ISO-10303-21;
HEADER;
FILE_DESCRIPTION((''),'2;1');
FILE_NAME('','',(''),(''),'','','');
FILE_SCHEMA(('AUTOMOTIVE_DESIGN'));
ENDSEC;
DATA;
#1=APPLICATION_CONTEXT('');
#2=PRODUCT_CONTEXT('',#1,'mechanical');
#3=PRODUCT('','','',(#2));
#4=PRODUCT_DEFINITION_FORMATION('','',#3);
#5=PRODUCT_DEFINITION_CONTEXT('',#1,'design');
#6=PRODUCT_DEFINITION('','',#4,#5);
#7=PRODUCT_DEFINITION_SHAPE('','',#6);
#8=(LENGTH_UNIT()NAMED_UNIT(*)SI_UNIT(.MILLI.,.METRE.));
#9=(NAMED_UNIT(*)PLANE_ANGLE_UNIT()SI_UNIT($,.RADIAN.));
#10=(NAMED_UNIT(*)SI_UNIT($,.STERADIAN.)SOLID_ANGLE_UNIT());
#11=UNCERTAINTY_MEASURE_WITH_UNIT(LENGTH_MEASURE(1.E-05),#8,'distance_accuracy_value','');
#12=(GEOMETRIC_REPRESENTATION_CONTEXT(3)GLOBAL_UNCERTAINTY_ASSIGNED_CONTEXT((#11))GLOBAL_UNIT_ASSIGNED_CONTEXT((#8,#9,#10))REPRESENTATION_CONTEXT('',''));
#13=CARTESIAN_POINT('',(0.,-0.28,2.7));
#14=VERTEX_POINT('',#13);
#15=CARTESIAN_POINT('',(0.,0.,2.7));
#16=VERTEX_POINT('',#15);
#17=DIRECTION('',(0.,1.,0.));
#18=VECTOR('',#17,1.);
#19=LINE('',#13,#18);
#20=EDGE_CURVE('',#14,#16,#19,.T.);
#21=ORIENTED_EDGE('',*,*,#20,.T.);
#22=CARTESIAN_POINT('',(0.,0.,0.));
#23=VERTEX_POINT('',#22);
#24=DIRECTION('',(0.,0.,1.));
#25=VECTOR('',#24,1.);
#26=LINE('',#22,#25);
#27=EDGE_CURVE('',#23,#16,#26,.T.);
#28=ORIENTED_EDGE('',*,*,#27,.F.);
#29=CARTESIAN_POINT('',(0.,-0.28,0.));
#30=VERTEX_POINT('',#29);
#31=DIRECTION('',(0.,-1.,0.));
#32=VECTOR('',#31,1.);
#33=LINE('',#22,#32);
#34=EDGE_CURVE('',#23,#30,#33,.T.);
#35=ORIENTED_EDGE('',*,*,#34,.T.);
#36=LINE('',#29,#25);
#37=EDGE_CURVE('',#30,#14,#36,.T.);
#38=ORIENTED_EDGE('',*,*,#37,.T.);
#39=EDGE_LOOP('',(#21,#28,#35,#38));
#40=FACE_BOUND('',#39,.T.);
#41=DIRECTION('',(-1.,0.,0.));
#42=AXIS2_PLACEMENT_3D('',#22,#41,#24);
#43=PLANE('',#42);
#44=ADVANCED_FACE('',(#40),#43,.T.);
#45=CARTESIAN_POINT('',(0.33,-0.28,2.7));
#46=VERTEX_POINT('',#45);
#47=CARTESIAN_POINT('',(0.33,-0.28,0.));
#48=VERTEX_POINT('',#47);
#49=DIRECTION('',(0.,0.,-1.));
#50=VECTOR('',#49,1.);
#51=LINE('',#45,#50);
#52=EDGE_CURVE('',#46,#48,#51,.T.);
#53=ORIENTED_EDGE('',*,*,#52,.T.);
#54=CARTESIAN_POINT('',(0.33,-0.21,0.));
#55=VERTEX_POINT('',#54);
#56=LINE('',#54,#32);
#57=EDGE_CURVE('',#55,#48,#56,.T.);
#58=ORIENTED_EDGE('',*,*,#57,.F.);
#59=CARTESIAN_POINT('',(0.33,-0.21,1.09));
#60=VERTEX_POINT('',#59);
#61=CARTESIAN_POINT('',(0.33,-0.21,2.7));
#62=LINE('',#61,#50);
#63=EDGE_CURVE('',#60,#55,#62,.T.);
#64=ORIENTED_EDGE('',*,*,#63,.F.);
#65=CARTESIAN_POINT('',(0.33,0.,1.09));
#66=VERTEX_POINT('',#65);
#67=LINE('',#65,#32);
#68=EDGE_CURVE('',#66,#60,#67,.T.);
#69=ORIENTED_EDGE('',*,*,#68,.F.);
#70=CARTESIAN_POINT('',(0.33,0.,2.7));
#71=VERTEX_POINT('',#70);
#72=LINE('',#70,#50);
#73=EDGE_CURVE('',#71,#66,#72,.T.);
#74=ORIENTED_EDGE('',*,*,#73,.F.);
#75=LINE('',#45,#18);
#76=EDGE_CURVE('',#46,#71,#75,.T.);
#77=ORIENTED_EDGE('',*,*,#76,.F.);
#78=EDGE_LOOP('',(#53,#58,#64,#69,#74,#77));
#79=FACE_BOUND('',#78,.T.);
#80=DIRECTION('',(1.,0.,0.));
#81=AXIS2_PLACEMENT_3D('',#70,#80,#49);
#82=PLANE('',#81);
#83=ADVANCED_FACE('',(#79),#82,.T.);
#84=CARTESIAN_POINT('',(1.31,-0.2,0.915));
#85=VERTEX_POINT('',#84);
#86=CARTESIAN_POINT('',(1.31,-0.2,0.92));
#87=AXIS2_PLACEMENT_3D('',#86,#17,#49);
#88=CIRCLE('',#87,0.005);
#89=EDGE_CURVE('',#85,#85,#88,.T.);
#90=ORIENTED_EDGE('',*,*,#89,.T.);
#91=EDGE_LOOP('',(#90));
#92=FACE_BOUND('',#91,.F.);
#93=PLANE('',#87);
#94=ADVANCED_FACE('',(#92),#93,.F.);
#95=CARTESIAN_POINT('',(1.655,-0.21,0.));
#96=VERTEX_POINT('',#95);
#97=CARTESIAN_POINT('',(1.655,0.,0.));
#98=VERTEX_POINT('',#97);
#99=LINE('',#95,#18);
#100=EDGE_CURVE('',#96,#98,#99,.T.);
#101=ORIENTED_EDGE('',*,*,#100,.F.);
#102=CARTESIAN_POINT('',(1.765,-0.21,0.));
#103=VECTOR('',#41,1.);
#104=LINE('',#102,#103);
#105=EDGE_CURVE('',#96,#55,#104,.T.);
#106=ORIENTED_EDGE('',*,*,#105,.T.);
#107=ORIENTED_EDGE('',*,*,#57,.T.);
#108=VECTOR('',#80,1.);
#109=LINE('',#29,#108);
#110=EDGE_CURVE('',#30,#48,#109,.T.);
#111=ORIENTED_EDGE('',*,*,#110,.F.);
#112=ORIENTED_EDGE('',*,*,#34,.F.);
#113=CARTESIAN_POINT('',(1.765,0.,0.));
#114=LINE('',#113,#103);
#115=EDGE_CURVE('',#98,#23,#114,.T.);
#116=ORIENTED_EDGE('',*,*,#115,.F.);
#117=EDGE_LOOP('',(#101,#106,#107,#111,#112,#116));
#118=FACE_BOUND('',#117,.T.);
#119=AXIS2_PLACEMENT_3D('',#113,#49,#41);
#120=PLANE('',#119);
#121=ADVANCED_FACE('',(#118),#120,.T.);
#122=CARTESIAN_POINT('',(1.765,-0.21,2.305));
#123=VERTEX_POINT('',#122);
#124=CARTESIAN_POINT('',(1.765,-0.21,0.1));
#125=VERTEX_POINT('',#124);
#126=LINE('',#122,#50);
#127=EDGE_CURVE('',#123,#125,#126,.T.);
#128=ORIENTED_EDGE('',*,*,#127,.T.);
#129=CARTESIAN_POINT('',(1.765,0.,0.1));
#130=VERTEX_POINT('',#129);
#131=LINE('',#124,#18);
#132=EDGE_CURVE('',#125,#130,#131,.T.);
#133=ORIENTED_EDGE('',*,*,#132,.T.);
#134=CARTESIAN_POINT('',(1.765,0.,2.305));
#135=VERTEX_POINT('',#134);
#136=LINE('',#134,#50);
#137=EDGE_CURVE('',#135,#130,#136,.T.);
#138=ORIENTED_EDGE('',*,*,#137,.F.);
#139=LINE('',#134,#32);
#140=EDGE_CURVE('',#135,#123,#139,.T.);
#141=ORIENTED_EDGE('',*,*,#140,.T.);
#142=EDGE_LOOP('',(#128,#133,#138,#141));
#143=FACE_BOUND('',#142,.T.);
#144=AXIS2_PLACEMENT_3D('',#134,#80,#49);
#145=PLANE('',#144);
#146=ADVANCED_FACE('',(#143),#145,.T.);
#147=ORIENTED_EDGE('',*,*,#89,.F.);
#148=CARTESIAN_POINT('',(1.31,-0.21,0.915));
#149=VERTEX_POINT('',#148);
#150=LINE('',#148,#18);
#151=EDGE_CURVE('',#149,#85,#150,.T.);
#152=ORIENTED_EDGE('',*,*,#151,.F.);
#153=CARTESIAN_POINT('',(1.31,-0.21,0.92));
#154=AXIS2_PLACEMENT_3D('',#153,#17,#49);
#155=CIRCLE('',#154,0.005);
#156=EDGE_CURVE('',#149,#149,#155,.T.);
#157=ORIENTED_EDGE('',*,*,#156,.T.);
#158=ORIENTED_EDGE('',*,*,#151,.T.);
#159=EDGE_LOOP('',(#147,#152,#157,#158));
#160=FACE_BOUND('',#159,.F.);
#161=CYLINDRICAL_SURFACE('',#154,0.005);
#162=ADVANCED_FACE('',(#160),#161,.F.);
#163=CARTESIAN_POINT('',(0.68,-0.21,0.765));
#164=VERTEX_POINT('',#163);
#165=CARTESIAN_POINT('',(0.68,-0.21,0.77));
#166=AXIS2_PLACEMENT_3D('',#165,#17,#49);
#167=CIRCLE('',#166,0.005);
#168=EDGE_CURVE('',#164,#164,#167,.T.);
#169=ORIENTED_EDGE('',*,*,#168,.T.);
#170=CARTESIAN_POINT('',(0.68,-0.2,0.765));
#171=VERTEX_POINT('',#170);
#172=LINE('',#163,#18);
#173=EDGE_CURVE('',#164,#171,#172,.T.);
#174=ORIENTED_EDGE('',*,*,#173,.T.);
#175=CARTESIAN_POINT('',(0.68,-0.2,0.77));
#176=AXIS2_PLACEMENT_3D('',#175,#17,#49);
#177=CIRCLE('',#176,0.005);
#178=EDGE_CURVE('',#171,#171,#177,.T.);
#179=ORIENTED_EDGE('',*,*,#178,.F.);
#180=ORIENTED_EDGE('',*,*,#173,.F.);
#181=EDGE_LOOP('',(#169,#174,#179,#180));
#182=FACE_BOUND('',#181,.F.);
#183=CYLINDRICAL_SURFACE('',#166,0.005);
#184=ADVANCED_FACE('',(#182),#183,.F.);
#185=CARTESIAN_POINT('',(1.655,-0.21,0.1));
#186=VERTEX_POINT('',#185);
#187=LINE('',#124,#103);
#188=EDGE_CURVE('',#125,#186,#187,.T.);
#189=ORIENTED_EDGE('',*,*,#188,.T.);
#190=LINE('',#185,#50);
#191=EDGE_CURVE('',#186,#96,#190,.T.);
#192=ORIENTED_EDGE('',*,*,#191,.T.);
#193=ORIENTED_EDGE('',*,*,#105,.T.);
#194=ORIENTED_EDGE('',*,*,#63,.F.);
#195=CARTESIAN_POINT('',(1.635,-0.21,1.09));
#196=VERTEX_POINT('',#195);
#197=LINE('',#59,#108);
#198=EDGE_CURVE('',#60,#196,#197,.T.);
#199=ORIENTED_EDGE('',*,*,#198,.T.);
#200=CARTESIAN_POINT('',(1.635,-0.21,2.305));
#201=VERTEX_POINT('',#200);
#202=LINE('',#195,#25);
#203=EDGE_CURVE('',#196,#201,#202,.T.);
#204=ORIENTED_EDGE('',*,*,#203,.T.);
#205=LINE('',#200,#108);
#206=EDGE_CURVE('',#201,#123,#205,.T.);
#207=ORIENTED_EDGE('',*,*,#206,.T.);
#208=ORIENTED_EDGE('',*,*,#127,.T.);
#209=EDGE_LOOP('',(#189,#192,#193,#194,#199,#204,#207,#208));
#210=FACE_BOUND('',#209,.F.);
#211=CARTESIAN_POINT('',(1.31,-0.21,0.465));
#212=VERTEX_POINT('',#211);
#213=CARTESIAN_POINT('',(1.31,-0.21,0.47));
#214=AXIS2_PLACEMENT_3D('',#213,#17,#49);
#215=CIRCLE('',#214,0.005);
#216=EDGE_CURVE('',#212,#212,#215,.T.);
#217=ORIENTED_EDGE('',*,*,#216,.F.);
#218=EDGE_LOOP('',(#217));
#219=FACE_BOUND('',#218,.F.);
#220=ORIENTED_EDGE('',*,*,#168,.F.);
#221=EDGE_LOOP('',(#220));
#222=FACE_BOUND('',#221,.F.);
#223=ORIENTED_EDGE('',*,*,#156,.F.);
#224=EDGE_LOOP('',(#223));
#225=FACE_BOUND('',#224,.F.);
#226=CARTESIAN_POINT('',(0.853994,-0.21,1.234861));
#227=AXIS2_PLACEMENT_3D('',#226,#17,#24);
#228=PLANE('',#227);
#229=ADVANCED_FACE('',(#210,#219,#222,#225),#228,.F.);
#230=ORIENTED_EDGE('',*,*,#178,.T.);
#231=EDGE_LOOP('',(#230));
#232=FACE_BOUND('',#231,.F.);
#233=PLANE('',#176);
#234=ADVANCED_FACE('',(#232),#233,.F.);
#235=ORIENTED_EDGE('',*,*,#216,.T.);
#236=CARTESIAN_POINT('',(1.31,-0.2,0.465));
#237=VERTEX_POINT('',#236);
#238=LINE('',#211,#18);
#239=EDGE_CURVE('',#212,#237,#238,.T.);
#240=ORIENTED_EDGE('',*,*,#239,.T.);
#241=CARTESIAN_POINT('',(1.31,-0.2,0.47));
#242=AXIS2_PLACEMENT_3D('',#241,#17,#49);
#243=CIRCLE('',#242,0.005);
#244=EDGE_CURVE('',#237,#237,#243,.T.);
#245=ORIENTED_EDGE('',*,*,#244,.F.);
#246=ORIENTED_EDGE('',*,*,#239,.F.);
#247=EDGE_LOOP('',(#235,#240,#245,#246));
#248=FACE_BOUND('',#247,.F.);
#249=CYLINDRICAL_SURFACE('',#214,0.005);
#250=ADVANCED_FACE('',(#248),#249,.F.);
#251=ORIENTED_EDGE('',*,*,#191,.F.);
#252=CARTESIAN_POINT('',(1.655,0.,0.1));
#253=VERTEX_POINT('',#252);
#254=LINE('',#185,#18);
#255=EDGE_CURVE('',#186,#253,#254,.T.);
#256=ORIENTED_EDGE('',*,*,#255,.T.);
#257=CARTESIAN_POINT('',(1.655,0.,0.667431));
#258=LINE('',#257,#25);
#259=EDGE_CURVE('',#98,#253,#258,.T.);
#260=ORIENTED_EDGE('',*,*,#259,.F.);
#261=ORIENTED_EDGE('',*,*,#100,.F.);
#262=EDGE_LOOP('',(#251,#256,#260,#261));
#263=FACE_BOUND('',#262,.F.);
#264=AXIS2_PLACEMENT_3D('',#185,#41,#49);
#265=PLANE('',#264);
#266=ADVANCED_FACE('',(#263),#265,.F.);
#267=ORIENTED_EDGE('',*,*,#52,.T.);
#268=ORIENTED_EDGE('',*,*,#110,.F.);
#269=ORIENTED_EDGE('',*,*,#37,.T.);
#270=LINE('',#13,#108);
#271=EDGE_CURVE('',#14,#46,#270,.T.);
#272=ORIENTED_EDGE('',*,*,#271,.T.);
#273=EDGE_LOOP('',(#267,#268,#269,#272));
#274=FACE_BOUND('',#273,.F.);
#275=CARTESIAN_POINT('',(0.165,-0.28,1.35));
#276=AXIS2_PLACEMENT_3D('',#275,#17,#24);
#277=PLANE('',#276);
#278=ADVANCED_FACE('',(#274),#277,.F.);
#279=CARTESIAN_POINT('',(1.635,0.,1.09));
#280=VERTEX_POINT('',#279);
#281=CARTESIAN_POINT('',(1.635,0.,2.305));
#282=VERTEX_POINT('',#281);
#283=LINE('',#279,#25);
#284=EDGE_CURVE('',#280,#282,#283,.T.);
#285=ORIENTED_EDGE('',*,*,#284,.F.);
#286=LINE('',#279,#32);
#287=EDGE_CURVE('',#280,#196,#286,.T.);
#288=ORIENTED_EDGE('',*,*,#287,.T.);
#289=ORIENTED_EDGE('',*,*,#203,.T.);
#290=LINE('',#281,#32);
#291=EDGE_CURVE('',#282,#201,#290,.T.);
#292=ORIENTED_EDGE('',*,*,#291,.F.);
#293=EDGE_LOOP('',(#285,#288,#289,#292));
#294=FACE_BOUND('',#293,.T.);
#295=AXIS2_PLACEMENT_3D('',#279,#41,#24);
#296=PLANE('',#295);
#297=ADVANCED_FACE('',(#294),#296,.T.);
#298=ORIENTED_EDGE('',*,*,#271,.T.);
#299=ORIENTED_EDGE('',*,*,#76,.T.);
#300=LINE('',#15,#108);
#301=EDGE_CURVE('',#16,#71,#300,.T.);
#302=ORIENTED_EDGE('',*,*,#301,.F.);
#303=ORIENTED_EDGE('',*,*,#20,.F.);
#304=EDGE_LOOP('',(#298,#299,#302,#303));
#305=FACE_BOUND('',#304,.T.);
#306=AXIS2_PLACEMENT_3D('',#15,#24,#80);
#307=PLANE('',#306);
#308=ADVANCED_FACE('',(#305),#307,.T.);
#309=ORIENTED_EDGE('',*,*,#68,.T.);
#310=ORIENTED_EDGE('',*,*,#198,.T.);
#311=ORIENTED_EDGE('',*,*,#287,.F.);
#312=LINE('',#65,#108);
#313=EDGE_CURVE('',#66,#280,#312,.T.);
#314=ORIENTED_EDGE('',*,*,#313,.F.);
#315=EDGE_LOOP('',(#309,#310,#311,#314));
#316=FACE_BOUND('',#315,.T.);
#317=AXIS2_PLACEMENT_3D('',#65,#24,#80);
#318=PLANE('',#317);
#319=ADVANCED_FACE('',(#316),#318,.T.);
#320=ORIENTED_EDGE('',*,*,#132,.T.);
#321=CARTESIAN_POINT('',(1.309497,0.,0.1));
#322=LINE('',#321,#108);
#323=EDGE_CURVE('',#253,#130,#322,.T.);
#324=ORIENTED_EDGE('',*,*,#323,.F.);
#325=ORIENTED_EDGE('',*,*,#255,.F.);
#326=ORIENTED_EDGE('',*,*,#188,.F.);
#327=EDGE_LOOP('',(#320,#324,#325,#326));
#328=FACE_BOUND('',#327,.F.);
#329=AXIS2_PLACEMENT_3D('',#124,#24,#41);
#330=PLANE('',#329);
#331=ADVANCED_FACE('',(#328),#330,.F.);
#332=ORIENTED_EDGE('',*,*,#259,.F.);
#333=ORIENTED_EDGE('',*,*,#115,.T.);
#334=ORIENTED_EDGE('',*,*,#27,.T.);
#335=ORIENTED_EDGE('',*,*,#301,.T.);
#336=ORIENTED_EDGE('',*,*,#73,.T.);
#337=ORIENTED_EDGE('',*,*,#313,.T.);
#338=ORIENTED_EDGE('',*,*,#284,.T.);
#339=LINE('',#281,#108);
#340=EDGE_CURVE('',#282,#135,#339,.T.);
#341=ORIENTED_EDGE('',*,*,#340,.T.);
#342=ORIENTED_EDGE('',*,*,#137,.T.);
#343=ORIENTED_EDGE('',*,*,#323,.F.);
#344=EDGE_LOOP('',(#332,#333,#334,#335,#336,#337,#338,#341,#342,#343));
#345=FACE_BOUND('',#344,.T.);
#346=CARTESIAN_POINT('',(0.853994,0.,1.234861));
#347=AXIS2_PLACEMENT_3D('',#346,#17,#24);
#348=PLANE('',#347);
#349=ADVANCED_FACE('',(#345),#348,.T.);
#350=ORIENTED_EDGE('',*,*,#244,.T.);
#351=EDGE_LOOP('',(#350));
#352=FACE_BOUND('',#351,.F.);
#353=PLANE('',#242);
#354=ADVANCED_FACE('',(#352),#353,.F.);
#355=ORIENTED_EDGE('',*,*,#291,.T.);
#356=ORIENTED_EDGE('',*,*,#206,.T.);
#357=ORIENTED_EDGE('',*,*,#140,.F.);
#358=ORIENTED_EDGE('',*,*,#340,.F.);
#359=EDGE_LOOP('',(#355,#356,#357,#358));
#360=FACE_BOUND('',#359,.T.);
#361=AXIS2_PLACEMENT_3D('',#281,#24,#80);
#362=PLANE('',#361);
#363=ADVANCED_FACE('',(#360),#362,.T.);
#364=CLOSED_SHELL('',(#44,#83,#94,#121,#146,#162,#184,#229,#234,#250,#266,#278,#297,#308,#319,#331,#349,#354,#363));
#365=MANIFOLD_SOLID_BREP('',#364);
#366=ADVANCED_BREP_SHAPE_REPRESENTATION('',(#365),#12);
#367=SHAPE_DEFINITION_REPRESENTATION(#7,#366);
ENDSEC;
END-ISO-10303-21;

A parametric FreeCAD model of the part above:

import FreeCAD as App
import Part
import Sketcher
Q = App.Units.Quantity

doc = App.newDocument("Part")
params = doc.addObject("Spreadsheet::Sheet", "Params")
for row, (alias, value) in enumerate([
    ("sketch1_height", "2.7 mm"),
    ("sketch1_width", "0.33 mm"),
    ("sketch1_height2", "1.61 mm"),
    ("pad1_length", "0.21 mm"),
    ("sketch2_height", "2.7 mm"),
    ("sketch2_width", "0.33 mm"),
    ("pad2_length", "0.07 mm"),
    ("sketch3_diameter", "0.01 mm"),
    ("hole_diameter", "0.01 mm"),
    ("hole_depth", "0.01 mm"),
    ("sketch4_diameter", "0.01 mm"),
    ("hole2_diameter", "0.01 mm"),
    ("hole2_depth", "0.01 mm"),
    ("sketch5_diameter", "0.01 mm"),
    ("hole3_diameter", "0.01 mm"),
    ("hole3_depth", "0.01 mm"),
    ("sketch6_height", "0.1 mm"),
    ("sketch6_width", "0.11 mm"),
], start=1):
    params.set(f"A{row}", alias)
    params.set(f"B{row}", "=" + value)
    params.setAlias(f"B{row}", alias)

body = doc.addObject("PartDesign::Body", "Body")

sketch1 = body.newObject("Sketcher::SketchObject", "Sketch")
sketch1.AttachmentSupport = (doc.getObject("XZ_Plane"), [""])
sketch1.MapMode = "FlatFace"
sketch1.addGeometry(Part.LineSegment(App.Vector(0, 2.7, 0), App.Vector(0, 0, 0)), False)
sketch1.addGeometry(Part.LineSegment(App.Vector(0, 0, 0), App.Vector(1.76, 0, 0)), False)
sketch1.addGeometry(Part.LineSegment(App.Vector(1.76, 0, 0), App.Vector(1.76, 2.31, 0)), False)
sketch1.addGeometry(Part.LineSegment(App.Vector(1.76, 2.31, 0), App.Vector(1.64, 2.31, 0)), False)
sketch1.addGeometry(Part.LineSegment(App.Vector(1.64, 2.31, 0), App.Vector(1.64, 1.09, 0)), False)
sketch1.addGeometry(Part.LineSegment(App.Vector(1.64, 1.09, 0), App.Vector(0.33, 1.09, 0)), False)
sketch1.addGeometry(Part.LineSegment(App.Vector(0.33, 1.09, 0), App.Vector(0.33, 2.7, 0)), False)
sketch1.addGeometry(Part.LineSegment(App.Vector(0.33, 2.7, 0), App.Vector(0, 2.7, 0)), False)
sketch1.addConstraint(Sketcher.Constraint("Coincident", 0, 2, 1, 1))
sketch1.addConstraint(Sketcher.Constraint("Coincident", 1, 2, 2, 1))
sketch1.addConstraint(Sketcher.Constraint("Coincident", 2, 2, 3, 1))
sketch1.addConstraint(Sketcher.Constraint("Coincident", 3, 2, 4, 1))
sketch1.addConstraint(Sketcher.Constraint("Coincident", 4, 2, 5, 1))
sketch1.addConstraint(Sketcher.Constraint("Coincident", 5, 2, 6, 1))
sketch1.addConstraint(Sketcher.Constraint("Coincident", 6, 2, 7, 1))
sketch1.addConstraint(Sketcher.Constraint("Coincident", 7, 2, 0, 1))
sketch1.addConstraint(Sketcher.Constraint("Vertical", 0))
sketch1.addConstraint(Sketcher.Constraint("Horizontal", 1))
sketch1.addConstraint(Sketcher.Constraint("Vertical", 2))
sketch1.addConstraint(Sketcher.Constraint("Horizontal", 3))
sketch1.addConstraint(Sketcher.Constraint("Vertical", 4))
sketch1.addConstraint(Sketcher.Constraint("Horizontal", 5))
sketch1.addConstraint(Sketcher.Constraint("Vertical", 6))
sketch1.addConstraint(Sketcher.Constraint("Horizontal", 7))
sketch1.addConstraint(Sketcher.Constraint("Coincident", 0, 2, -1, 1))
sketch1.addConstraint(Sketcher.Constraint("DistanceX", 1, 1, 1, 2, Q("1.765 mm")))
sketch1.addConstraint(Sketcher.Constraint("DistanceY", 0, 2, 0, 1, Q("2.7 mm")))
sketch1.addConstraint(Sketcher.Constraint("DistanceX", -1, 1, 3, 2, Q("1.635 mm")))
sketch1.addConstraint(Sketcher.Constraint("DistanceX", 7, 2, 7, 1, Q("0.33 mm")))
sketch1.addConstraint(Sketcher.Constraint("DistanceY", 6, 1, 6, 2, Q("1.61 mm")))
sketch1.addConstraint(Sketcher.Constraint("DistanceY", 2, 1, 2, 2, Q("2.305 mm")))
sketch1.setExpression("Constraints[18]", "Params.sketch1_height")
sketch1.setExpression("Constraints[20]", "Params.sketch1_width")
sketch1.setExpression("Constraints[21]", "Params.sketch1_height2")
pad1 = body.newObject("PartDesign::Pad", "Pad")
pad1.Profile = sketch1
pad1.setExpression("Length", "Params.pad1_length")

sketch2 = body.newObject("Sketcher::SketchObject", "Sketch001")
sketch2.AttachmentSupport = (doc.getObject("XZ_Plane"), [""])
sketch2.MapMode = "FlatFace"
sketch2.AttachmentOffset = App.Placement(App.Vector(0, 0, 0.21), App.Rotation())
sketch2.addGeometry(Part.LineSegment(App.Vector(0, 2.7, 0), App.Vector(0, 0, 0)), False)
sketch2.addGeometry(Part.LineSegment(App.Vector(0, 0, 0), App.Vector(0.33, 0, 0)), False)
sketch2.addGeometry(Part.LineSegment(App.Vector(0.33, 0, 0), App.Vector(0.33, 2.7, 0)), False)
sketch2.addGeometry(Part.LineSegment(App.Vector(0.33, 2.7, 0), App.Vector(0, 2.7, 0)), False)
sketch2.addConstraint(Sketcher.Constraint("Coincident", 0, 2, 1, 1))
sketch2.addConstraint(Sketcher.Constraint("Coincident", 1, 2, 2, 1))
sketch2.addConstraint(Sketcher.Constraint("Coincident", 2, 2, 3, 1))
sketch2.addConstraint(Sketcher.Constraint("Coincident", 3, 2, 0, 1))
sketch2.addConstraint(Sketcher.Constraint("Vertical", 0))
sketch2.addConstraint(Sketcher.Constraint("Horizontal", 1))
sketch2.addConstraint(Sketcher.Constraint("Vertical", 2))
sketch2.addConstraint(Sketcher.Constraint("Horizontal", 3))
sketch2.addConstraint(Sketcher.Constraint("Coincident", 0, 2, -1, 1))
sketch2.addConstraint(Sketcher.Constraint("DistanceY", 0, 2, 0, 1, Q("2.7 mm")))
sketch2.addConstraint(Sketcher.Constraint("DistanceX", 1, 1, 1, 2, Q("0.33 mm")))
sketch2.setExpression("Constraints[9]", "Params.sketch2_height")
sketch2.setExpression("Constraints[10]", "Params.sketch2_width")
pad2 = body.newObject("PartDesign::Pad", "Pad001")
pad2.Profile = sketch2
pad2.setExpression("Length", "Params.pad2_length")

sketch3 = body.newObject("Sketcher::SketchObject", "Sketch002")
sketch3.AttachmentSupport = (doc.getObject("XZ_Plane"), [""])
sketch3.MapMode = "FlatFace"
sketch3.AttachmentOffset = App.Placement(App.Vector(0, 0, 0.21), App.Rotation())
sketch3.addGeometry(Part.Circle(App.Vector(1.31, 0.92, 0), App.Vector(0, 0, 1), 0.005), False)
sketch3.addConstraint(Sketcher.Constraint("Diameter", 0, Q("0.01 mm")))
sketch3.addConstraint(Sketcher.Constraint("DistanceX", -1, 1, 0, 3, Q("1.31 mm")))
sketch3.addConstraint(Sketcher.Constraint("DistanceY", -1, 1, 0, 3, Q("0.92 mm")))
sketch3.setExpression("Constraints[0]", "Params.sketch3_diameter")
doc.recompute()
hole = body.newObject("PartDesign::Hole", "Hole")
hole.Profile = sketch3
hole.ThreadType = "None"
hole.setExpression("Diameter", "Params.hole_diameter")
hole.DepthType = "Dimension"
hole.setExpression("Depth", "Params.hole_depth")
hole.DrillPoint = "Flat"

sketch4 = body.newObject("Sketcher::SketchObject", "Sketch003")
sketch4.AttachmentSupport = (doc.getObject("XZ_Plane"), [""])
sketch4.MapMode = "FlatFace"
sketch4.AttachmentOffset = App.Placement(App.Vector(0, 0, 0.21), App.Rotation())
sketch4.addGeometry(Part.Circle(App.Vector(1.31, 0.47, 0), App.Vector(0, 0, 1), 0.005), False)
sketch4.addConstraint(Sketcher.Constraint("Diameter", 0, Q("0.01 mm")))
sketch4.addConstraint(Sketcher.Constraint("DistanceX", -1, 1, 0, 3, Q("1.31 mm")))
sketch4.addConstraint(Sketcher.Constraint("DistanceY", -1, 1, 0, 3, Q("0.47 mm")))
sketch4.setExpression("Constraints[0]", "Params.sketch4_diameter")
doc.recompute()
hole2 = body.newObject("PartDesign::Hole", "Hole001")
hole2.Profile = sketch4
hole2.ThreadType = "None"
hole2.setExpression("Diameter", "Params.hole2_diameter")
hole2.DepthType = "Dimension"
hole2.setExpression("Depth", "Params.hole2_depth")
hole2.DrillPoint = "Flat"

sketch5 = body.newObject("Sketcher::SketchObject", "Sketch004")
sketch5.AttachmentSupport = (doc.getObject("XZ_Plane"), [""])
sketch5.MapMode = "FlatFace"
sketch5.AttachmentOffset = App.Placement(App.Vector(0, 0, 0.21), App.Rotation())
sketch5.addGeometry(Part.Circle(App.Vector(0.68, 0.77, 0), App.Vector(0, 0, 1), 0.005), False)
sketch5.addConstraint(Sketcher.Constraint("Diameter", 0, Q("0.01 mm")))
sketch5.addConstraint(Sketcher.Constraint("DistanceX", -1, 1, 0, 3, Q("0.68 mm")))
sketch5.addConstraint(Sketcher.Constraint("DistanceY", -1, 1, 0, 3, Q("0.77 mm")))
sketch5.setExpression("Constraints[0]", "Params.sketch5_diameter")
doc.recompute()
hole3 = body.newObject("PartDesign::Hole", "Hole002")
hole3.Profile = sketch5
hole3.ThreadType = "None"
hole3.setExpression("Diameter", "Params.hole3_diameter")
hole3.DepthType = "Dimension"
hole3.setExpression("Depth", "Params.hole3_depth")
hole3.DrillPoint = "Flat"

sketch6 = body.newObject("Sketcher::SketchObject", "Sketch005")
sketch6.AttachmentSupport = (doc.getObject("XZ_Plane"), [""])
sketch6.MapMode = "FlatFace"
sketch6.AttachmentOffset = App.Placement(App.Vector(0, 0, 0.21), App.Rotation())
sketch6.addGeometry(Part.LineSegment(App.Vector(1.76, 0, 0), App.Vector(1.76, 0.1, 0)), False)
sketch6.addGeometry(Part.LineSegment(App.Vector(1.76, 0.1, 0), App.Vector(1.66, 0.1, 0)), False)
sketch6.addGeometry(Part.LineSegment(App.Vector(1.66, 0.1, 0), App.Vector(1.66, 0, 0)), False)
sketch6.addGeometry(Part.LineSegment(App.Vector(1.66, 0, 0), App.Vector(1.76, 0, 0)), False)
sketch6.addConstraint(Sketcher.Constraint("Coincident", 0, 2, 1, 1))
sketch6.addConstraint(Sketcher.Constraint("Coincident", 1, 2, 2, 1))
sketch6.addConstraint(Sketcher.Constraint("Coincident", 2, 2, 3, 1))
sketch6.addConstraint(Sketcher.Constraint("Coincident", 3, 2, 0, 1))
sketch6.addConstraint(Sketcher.Constraint("Vertical", 0))
sketch6.addConstraint(Sketcher.Constraint("Horizontal", 1))
sketch6.addConstraint(Sketcher.Constraint("Vertical", 2))
sketch6.addConstraint(Sketcher.Constraint("Horizontal", 3))
sketch6.addConstraint(Sketcher.Constraint("PointOnObject", 2, 2, -1))
sketch6.addConstraint(Sketcher.Constraint("DistanceY", 0, 1, 0, 2, Q("0.1 mm")))
sketch6.addConstraint(Sketcher.Constraint("DistanceX", 1, 2, 1, 1, Q("0.11 mm")))
sketch6.addConstraint(Sketcher.Constraint("DistanceX", -1, 1, 0, 2, Q("1.765 mm")))
sketch6.setExpression("Constraints[9]", "Params.sketch6_height")
sketch6.setExpression("Constraints[10]", "Params.sketch6_width")
pocket1 = body.newObject("PartDesign::Pocket", "Pocket")
pocket1.Profile = sketch6
pocket1.Type = "ThroughAll"

doc.recompute()
